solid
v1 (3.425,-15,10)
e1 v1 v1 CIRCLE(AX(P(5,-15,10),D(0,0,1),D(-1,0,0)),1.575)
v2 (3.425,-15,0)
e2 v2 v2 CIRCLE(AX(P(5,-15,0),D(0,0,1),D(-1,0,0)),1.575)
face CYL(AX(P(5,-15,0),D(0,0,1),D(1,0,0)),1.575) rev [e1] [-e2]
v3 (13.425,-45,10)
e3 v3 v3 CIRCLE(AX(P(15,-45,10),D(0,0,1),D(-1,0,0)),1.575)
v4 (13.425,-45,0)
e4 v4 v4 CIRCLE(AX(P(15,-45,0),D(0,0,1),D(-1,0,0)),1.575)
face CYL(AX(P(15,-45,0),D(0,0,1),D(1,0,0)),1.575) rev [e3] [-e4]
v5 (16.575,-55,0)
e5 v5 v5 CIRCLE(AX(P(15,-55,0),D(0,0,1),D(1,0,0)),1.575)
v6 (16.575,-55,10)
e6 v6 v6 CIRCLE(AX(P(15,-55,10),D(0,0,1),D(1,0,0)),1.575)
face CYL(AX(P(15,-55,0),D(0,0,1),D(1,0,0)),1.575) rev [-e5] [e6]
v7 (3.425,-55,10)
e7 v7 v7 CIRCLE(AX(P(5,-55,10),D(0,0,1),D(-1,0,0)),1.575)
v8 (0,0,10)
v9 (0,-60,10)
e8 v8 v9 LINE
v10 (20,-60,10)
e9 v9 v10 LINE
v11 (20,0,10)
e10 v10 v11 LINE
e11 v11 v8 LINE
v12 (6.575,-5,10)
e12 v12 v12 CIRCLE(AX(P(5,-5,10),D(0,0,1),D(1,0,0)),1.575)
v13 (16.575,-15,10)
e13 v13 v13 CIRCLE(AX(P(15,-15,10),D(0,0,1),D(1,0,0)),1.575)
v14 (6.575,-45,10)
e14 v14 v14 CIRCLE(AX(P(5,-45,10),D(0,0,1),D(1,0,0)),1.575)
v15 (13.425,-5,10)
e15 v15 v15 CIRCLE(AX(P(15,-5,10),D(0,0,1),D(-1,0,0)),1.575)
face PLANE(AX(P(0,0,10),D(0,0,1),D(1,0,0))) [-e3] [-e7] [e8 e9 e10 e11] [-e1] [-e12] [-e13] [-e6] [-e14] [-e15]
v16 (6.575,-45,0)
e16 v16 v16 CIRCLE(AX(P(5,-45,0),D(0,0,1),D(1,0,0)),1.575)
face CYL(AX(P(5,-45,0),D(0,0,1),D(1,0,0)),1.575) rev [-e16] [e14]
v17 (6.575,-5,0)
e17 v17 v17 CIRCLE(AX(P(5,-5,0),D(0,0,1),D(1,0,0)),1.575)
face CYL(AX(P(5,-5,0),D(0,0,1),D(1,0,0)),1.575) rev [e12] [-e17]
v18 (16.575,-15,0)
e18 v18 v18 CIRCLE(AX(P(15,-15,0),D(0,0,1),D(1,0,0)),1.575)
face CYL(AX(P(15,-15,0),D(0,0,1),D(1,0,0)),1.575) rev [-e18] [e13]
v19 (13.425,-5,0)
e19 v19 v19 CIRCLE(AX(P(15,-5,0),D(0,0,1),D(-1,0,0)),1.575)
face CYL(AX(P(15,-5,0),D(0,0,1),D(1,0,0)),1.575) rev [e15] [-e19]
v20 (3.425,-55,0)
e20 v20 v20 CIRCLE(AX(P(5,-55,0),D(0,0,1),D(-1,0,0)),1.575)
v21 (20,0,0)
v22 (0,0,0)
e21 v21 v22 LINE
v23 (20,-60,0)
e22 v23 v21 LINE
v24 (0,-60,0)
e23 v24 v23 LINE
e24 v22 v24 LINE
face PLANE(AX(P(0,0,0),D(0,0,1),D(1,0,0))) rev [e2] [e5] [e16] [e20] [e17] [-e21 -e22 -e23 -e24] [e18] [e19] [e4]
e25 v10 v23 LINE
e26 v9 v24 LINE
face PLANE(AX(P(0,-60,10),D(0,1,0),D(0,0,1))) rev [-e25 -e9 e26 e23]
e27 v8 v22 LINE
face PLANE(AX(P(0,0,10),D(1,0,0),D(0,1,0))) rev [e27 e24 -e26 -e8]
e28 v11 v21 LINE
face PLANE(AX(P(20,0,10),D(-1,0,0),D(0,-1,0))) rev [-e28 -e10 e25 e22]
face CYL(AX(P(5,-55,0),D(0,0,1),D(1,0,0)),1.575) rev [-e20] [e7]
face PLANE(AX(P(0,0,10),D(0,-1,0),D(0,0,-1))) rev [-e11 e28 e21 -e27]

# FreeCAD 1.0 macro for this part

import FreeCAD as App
import Part
import Sketcher


def add_polygon(sketch, points):
    """Adds a closed chain of lines whose ends are joined by coincident constraints."""
    first, n = sketch.GeometryCount, len(points)
    for a, b in zip(points, points[1:] + points[:1]):
        sketch.addGeometry(Part.LineSegment(App.Vector(*a, 0), App.Vector(*b, 0)), False)
    for i in range(n):
        sketch.addConstraint(Sketcher.Constraint("Coincident", first + i, 2, first + (i + 1) % n, 1))

doc = App.newDocument("Part")
params = doc.addObject("Spreadsheet::Sheet", "Params")
for row, (alias, value) in enumerate([
    ("sketch1_width", "20 mm"),
    ("sketch1_height", "60 mm"),
    ("pad1_length", "10 mm"),
    ("sketch2_diameter", "3.15 mm"),
], start=1):
    params.set(f"A{row}", alias)
    params.set(f"B{row}", "=" + value)
    params.setAlias(f"B{row}", alias)

body = doc.addObject("PartDesign::Body", "Body")

sketch1 = doc.addObject("Sketcher::SketchObject", "Sketch")
body.addObject(sketch1)
sketch1.AttachmentSupport = (doc.XY_Plane, [""])
sketch1.MapMode = "FlatFace"
add_polygon(sketch1, [(0, 0), (0, -60), (20, -60), (20, 0)])
sketch1.addConstraint(Sketcher.Constraint("Vertical", 0))
sketch1.addConstraint(Sketcher.Constraint("Horizontal", 1))
sketch1.addConstraint(Sketcher.Constraint("Vertical", 2))
sketch1.addConstraint(Sketcher.Constraint("Horizontal", 3))
sketch1.addConstraint(Sketcher.Constraint("Coincident", 3, 2, -1, 1))
sketch1.addConstraint(Sketcher.Constraint("DistanceX", 1, 1, 1, 2, 20.0))
sketch1.addConstraint(Sketcher.Constraint("DistanceY", 0, 2, 0, 1, 60.0))
sketch1.setExpression("Constraints[9]", "Params.sketch1_width")
sketch1.setExpression("Constraints[10]", "Params.sketch1_height")
pad1 = doc.addObject("PartDesign::Pad", "Pad")
body.addObject(pad1)
pad1.Profile = sketch1
pad1.setExpression("Length", "Params.pad1_length")

sketch2 = doc.addObject("Sketcher::SketchObject", "Sketch001")
body.addObject(sketch2)
sketch2.AttachmentSupport = (doc.XY_Plane, [""])
sketch2.MapMode = "FlatFace"
sketch2.AttachmentOffset = App.Placement(App.Vector(0, 0, 10), App.Rotation())
sketch2.addGeometry(Part.Circle(App.Vector(5, -5, 0), App.Vector(0, 0, 1), 1.6), False)
sketch2.addGeometry(Part.Circle(App.Vector(15, -5, 0), App.Vector(0, 0, 1), 1.6), False)
sketch2.addGeometry(Part.Circle(App.Vector(15, -15, 0), App.Vector(0, 0, 1), 1.6), False)
sketch2.addGeometry(Part.Circle(App.Vector(5, -15, 0), App.Vector(0, 0, 1), 1.6), False)
sketch2.addGeometry(Part.Circle(App.Vector(5, -45, 0), App.Vector(0, 0, 1), 1.6), False)
sketch2.addGeometry(Part.Circle(App.Vector(15, -45, 0), App.Vector(0, 0, 1), 1.6), False)
sketch2.addGeometry(Part.Circle(App.Vector(15, -55, 0), App.Vector(0, 0, 1), 1.6), False)
sketch2.addGeometry(Part.Circle(App.Vector(5, -55, 0), App.Vector(0, 0, 1), 1.6), False)
sketch2.addConstraint(Sketcher.Constraint("Equal", 0, 1))
sketch2.addConstraint(Sketcher.Constraint("Equal", 1, 2))
sketch2.addConstraint(Sketcher.Constraint("Equal", 2, 3))
sketch2.addConstraint(Sketcher.Constraint("Equal", 3, 4))
sketch2.addConstraint(Sketcher.Constraint("Equal", 4, 5))
sketch2.addConstraint(Sketcher.Constraint("Equal", 5, 6))
sketch2.addConstraint(Sketcher.Constraint("Equal", 6, 7))
sketch2.addConstraint(Sketcher.Constraint("Horizontal", 0, 3, 1, 3))
sketch2.addConstraint(Sketcher.Constraint("Horizontal", 2, 3, 3, 3))
sketch2.addConstraint(Sketcher.Constraint("Horizontal", 4, 3, 5, 3))
sketch2.addConstraint(Sketcher.Constraint("Horizontal", 6, 3, 7, 3))
sketch2.addConstraint(Sketcher.Constraint("Vertical", 1, 3, 2, 3))
sketch2.addConstraint(Sketcher.Constraint("Vertical", 0, 3, 3, 3))
sketch2.addConstraint(Sketcher.Constraint("Vertical", 3, 3, 4, 3))
sketch2.addConstraint(Sketcher.Constraint("Vertical", 2, 3, 5, 3))
sketch2.addConstraint(Sketcher.Constraint("Vertical", 5, 3, 6, 3))
sketch2.addConstraint(Sketcher.Constraint("Vertical", 4, 3, 7, 3))
sketch2.addConstraint(Sketcher.Constraint("Diameter", 0, 3.15))
sketch2.addConstraint(Sketcher.Constraint("DistanceX", -1, 1, 0, 3, 5.0))
sketch2.addConstraint(Sketcher.Constraint("DistanceY", 0, 3, -1, 1, 5.0))
sketch2.addConstraint(Sketcher.Constraint("DistanceX", -1, 1, 1, 3, 15.0))
sketch2.addConstraint(Sketcher.Constraint("DistanceY", 2, 3, -1, 1, 15.0))
sketch2.addConstraint(Sketcher.Constraint("DistanceY", 4, 3, -1, 1, 45.0))
sketch2.addConstraint(Sketcher.Constraint("DistanceY", 6, 3, -1, 1, 55.0))
sketch2.setExpression("Constraints[17]", "Params.sketch2_diameter")
pocket1 = doc.addObject("PartDesign::Pocket", "Pocket")
body.addObject(pocket1)
pocket1.Profile = sketch2
pocket1.Type = "ThroughAll"

doc.recompute()
